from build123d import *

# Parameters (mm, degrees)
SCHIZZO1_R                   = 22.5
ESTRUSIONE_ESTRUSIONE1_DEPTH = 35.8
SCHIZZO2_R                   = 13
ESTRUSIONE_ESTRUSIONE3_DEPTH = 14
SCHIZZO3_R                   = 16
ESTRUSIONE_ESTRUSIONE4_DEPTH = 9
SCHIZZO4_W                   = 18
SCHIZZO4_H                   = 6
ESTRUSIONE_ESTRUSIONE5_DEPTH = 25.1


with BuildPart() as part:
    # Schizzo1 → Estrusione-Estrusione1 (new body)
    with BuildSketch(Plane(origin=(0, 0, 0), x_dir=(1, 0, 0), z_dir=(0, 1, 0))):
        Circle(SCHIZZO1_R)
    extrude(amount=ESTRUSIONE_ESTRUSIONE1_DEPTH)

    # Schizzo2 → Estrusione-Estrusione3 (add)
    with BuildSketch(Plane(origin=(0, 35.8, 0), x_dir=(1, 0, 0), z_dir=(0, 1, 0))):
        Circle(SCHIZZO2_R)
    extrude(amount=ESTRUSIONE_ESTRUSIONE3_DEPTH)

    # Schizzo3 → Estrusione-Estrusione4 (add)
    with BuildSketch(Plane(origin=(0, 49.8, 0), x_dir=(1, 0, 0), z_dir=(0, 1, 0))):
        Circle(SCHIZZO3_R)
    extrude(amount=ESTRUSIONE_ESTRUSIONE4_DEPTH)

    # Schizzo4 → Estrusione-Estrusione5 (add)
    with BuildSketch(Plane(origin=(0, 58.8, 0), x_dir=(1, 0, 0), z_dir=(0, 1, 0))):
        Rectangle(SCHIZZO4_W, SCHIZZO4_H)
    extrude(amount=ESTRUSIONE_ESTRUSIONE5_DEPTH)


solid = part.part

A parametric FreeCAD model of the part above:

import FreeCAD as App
import Part
import Sketcher

V = App.Vector
Q = App.Units.Quantity

doc = App.newDocument("Part")
params = doc.addObject("Spreadsheet::Sheet", "Params")
for row, (alias, value) in enumerate([
    ("sketch1_diameter", "45 mm"),
    ("pad1_length", "35.8 mm"),
    ("sketch2_diameter", "26 mm"),
    ("pad2_length", "14 mm"),
    ("sketch3_diameter", "32 mm"),
    ("pad3_length", "9 mm"),
    ("sketch4_width", "18 mm"),
    ("sketch4_height", "6 mm"),
    ("pad4_length", "25.1 mm"),
], start=1):
    params.set(f"A{row}", alias)
    params.set(f"B{row}", "=" + value)
    params.setAlias(f"B{row}", alias)

body = doc.addObject("PartDesign::Body", "Body")

# Sketch on XZ plane
sketch1 = body.newObject("Sketcher::SketchObject", "Sketch")
sketch1.AttachmentSupport = (doc.getObject("XZ_Plane"), [""])
sketch1.MapMode = "FlatFace"
sketch1.addGeometry(Part.Circle(V(0, 0, 0), V(0, 0, 1), 22), False)
sketch1.addConstraint(Sketcher.Constraint("Coincident", 0, 3, -1, 1))
sketch1.addConstraint(Sketcher.Constraint("Diameter", 0, Q("45 mm")))
sketch1.setExpression("Constraints[1]", "Params.sketch1_diameter")
pad1 = body.newObject("PartDesign::Pad", "Pad")
pad1.Profile = sketch1
pad1.setExpression("Length", "Params.pad1_length")
pad1.Reversed = True

# Sketch on XZ plane
sketch2 = body.newObject("Sketcher::SketchObject", "Sketch001")
sketch2.AttachmentSupport = (doc.getObject("XZ_Plane"), [""])
sketch2.MapMode = "FlatFace"
sketch2.AttachmentOffset = App.Placement(V(0, 0, -35.8), App.Rotation())
sketch2.addGeometry(Part.Circle(V(0, 0, 0), V(0, 0, 1), 13), False)
sketch2.addConstraint(Sketcher.Constraint("Coincident", 0, 3, -1, 1))
sketch2.addConstraint(Sketcher.Constraint("Diameter", 0, Q("26 mm")))
sketch2.setExpression("Constraints[1]", "Params.sketch2_diameter")
pad2 = body.newObject("PartDesign::Pad", "Pad001")
pad2.Profile = sketch2
pad2.setExpression("Length", "Params.pad2_length")
pad2.Reversed = True

# Sketch on XZ plane
sketch3 = body.newObject("Sketcher::SketchObject", "Sketch002")
sketch3.AttachmentSupport = (doc.getObject("XZ_Plane"), [""])
sketch3.MapMode = "FlatFace"
sketch3.AttachmentOffset = App.Placement(V(0, 0, -49.8), App.Rotation())
sketch3.addGeometry(Part.Circle(V(0, 0, 0), V(0, 0, 1), 16), False)
sketch3.addConstraint(Sketcher.Constraint("Coincident", 0, 3, -1, 1))
sketch3.addConstraint(Sketcher.Constraint("Diameter", 0, Q("32 mm")))
sketch3.setExpression("Constraints[1]", "Params.sketch3_diameter")
pad3 = body.newObject("PartDesign::Pad", "Pad002")
pad3.Profile = sketch3
pad3.setExpression("Length", "Params.pad3_length")
pad3.Reversed = True

# Sketch on XZ plane
sketch4 = body.newObject("Sketcher::SketchObject", "Sketch003")
sketch4.AttachmentSupport = (doc.getObject("XZ_Plane"), [""])
sketch4.MapMode = "FlatFace"
sketch4.AttachmentOffset = App.Placement(V(0, 0, -58.8), App.Rotation())
sketch4.addGeometry(Part.LineSegment(V(-9, -3, 0), V(-9, 3, 0)), False)
sketch4.addGeometry(Part.LineSegment(V(-9, 3, 0), V(9, 3, 0)), False)
sketch4.addGeometry(Part.LineSegment(V(9, 3, 0), V(9, -3, 0)), False)
sketch4.addGeometry(Part.LineSegment(V(9, -3, 0), V(-9, -3, 0)), False)
sketch4.addConstraint(Sketcher.Constraint("Coincident", 0, 2, 1, 1))
sketch4.addConstraint(Sketcher.Constraint("Coincident", 1, 2, 2, 1))
sketch4.addConstraint(Sketcher.Constraint("Coincident", 2, 2, 3, 1))
sketch4.addConstraint(Sketcher.Constraint("Coincident", 3, 2, 0, 1))
sketch4.addConstraint(Sketcher.Constraint("Vertical", 0))
sketch4.addConstraint(Sketcher.Constraint("Horizontal", 1))
sketch4.addConstraint(Sketcher.Constraint("Vertical", 2))
sketch4.addConstraint(Sketcher.Constraint("Horizontal", 3))
sketch4.addConstraint(Sketcher.Constraint("Symmetric", 0, 2, 2, 2, -1, 1))
sketch4.addConstraint(Sketcher.Constraint("DistanceX", 1, 1, 1, 2, Q("18 mm")))
sketch4.addConstraint(Sketcher.Constraint("DistanceY", 0, 1, 0, 2, Q("6 mm")))
sketch4.setExpression("Constraints[9]", "Params.sketch4_width")
sketch4.setExpression("Constraints[10]", "Params.sketch4_height")
pad4 = body.newObject("PartDesign::Pad", "Pad003")
pad4.Profile = sketch4
pad4.setExpression("Length", "Params.pad4_length")
pad4.Reversed = True

doc.recompute()
